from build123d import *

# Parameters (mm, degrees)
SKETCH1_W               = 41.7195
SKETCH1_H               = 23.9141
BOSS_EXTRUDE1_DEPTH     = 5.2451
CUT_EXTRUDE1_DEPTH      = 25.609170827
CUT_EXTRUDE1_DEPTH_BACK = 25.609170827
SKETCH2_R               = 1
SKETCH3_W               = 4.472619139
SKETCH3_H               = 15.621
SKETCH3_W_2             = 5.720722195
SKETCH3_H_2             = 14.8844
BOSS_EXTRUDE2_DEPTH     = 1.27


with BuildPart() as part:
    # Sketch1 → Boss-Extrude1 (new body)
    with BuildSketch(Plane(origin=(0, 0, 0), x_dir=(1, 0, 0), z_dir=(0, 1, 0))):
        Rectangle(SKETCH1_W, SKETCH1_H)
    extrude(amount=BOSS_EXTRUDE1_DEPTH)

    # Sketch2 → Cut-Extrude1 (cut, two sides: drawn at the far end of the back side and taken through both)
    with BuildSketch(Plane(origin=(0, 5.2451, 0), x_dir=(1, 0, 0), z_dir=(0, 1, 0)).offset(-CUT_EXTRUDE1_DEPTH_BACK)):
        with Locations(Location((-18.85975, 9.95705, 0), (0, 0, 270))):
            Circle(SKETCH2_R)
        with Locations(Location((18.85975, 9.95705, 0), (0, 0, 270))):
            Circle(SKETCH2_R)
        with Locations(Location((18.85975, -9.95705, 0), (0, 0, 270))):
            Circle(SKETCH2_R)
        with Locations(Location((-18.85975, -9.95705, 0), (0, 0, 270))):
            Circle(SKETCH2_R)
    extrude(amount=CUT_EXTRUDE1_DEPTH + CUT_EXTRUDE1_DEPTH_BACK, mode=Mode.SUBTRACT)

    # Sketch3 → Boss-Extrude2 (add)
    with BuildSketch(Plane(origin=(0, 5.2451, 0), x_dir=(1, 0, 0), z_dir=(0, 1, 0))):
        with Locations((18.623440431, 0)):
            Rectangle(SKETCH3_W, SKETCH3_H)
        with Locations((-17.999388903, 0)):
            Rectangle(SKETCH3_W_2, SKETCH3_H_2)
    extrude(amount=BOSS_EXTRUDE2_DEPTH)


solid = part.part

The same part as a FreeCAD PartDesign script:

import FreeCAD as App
import Part
import Sketcher

V = App.Vector
Q = App.Units.Quantity


def add_polygon(sketch, points):
    """Adds a closed chain of lines whose ends are joined by coincident constraints."""
    first, n = sketch.GeometryCount, len(points)
    for a, b in zip(points, points[1:] + points[:1]):
        sketch.addGeometry(Part.LineSegment(App.Vector(*a, 0), App.Vector(*b, 0)), False)
    for i in range(n):
        sketch.addConstraint(Sketcher.Constraint("Coincident", first + i, 2, first + (i + 1) % n, 1))

doc = App.newDocument("Part")
body = doc.addObject("PartDesign::Body", "Body")

# Sketch on XZ plane
sketch1 = doc.addObject("Sketcher::SketchObject", "Sketch")
body.addObject(sketch1)
sketch1.AttachmentSupport = (doc.XZ_Plane, [""])
sketch1.MapMode = "FlatFace"
add_polygon(sketch1, [(-21, -12), (-21, 12), (21, 12), (21, -12)])  # lines 0-3
sketch1.addConstraint(Sketcher.Constraint("Vertical", 0))
sketch1.addConstraint(Sketcher.Constraint("Horizontal", 1))
sketch1.addConstraint(Sketcher.Constraint("Vertical", 2))
sketch1.addConstraint(Sketcher.Constraint("Horizontal", 3))
sketch1.addConstraint(Sketcher.Constraint("Symmetric", 0, 2, 2, 2, -1, 1))
sketch1.addConstraint(Sketcher.Constraint("DistanceX", 1, 1, 1, 2, Q("1.6425 in")))
sketch1.addConstraint(Sketcher.Constraint("DistanceY", 0, 1, 0, 2, Q("0.9415 in")))
pad1 = doc.addObject("PartDesign::Pad", "Pad")
body.addObject(pad1)
pad1.Profile = sketch1
pad1.Length = Q("0.2065 in")
pad1.Reversed = True

# Sketch on XZ plane
sketch2 = doc.addObject("Sketcher::SketchObject", "Sketch001")
body.addObject(sketch2)
sketch2.AttachmentSupport = (doc.XZ_Plane, [""])
sketch2.MapMode = "FlatFace"
sketch2.AttachmentOffset = App.Placement(V(0, 0, -0.2065 * 25.4), App.Rotation())
sketch2.addGeometry(Part.Circle(V(-18.9, -10, 0), V(0, 0, 1), 1), False)
sketch2.addGeometry(Part.Circle(V(18.9, -10, 0), V(0, 0, 1), 1), False)
sketch2.addGeometry(Part.Circle(V(18.9, 10, 0), V(0, 0, 1), 1), False)
sketch2.addGeometry(Part.Circle(V(-18.9, 10, 0), V(0, 0, 1), 1), False)
sketch2.addConstraint(Sketcher.Constraint("Equal", 0, 1))
sketch2.addConstraint(Sketcher.Constraint("Equal", 1, 2))
sketch2.addConstraint(Sketcher.Constraint("Equal", 2, 3))
sketch2.addConstraint(Sketcher.Constraint("Symmetric", 0, 3, 2, 3, -1, 1))
sketch2.addConstraint(Sketcher.Constraint("Symmetric", 1, 3, 3, 3, -1, 1))
sketch2.addConstraint(Sketcher.Constraint("Symmetric", 0, 3, 1, 3, -2))
sketch2.addConstraint(Sketcher.Constraint("Diameter", 0, 2.0))
sketch2.addConstraint(Sketcher.Constraint("DistanceX", 0, 3, 1, 3, 37.7195))
sketch2.addConstraint(Sketcher.Constraint("DistanceY", 1, 3, 2, 3, 19.9141))
pocket1 = doc.addObject("PartDesign::Pocket", "Pocket")
body.addObject(pocket1)
pocket1.Profile = sketch2
pocket1.Type = "ThroughAll"
pocket1.Midplane = True

# Sketch on XZ plane
sketch3 = doc.addObject("Sketcher::SketchObject", "Sketch002")
body.addObject(sketch3)
sketch3.AttachmentSupport = (doc.XZ_Plane, [""])
sketch3.MapMode = "FlatFace"
sketch3.AttachmentOffset = App.Placement(V(0, 0, -0.2065 * 25.4), App.Rotation())
add_polygon(sketch3, [(16.4, -7.8), (16.4, 7.8), (20.9, 7.8), (20.9, -7.8)])  # lines 0-3
add_polygon(sketch3, [(-20.9, -7.4), (-20.9, 7.4), (-15.1, 7.4), (-15.1, -7.4)])  # lines 4-7
sketch3.addConstraint(Sketcher.Constraint("Vertical", 0))
sketch3.addConstraint(Sketcher.Constraint("Horizontal", 1))
sketch3.addConstraint(Sketcher.Constraint("Vertical", 2))
sketch3.addConstraint(Sketcher.Constraint("Horizontal", 3))
sketch3.addConstraint(Sketcher.Constraint("Vertical", 4))
sketch3.addConstraint(Sketcher.Constraint("Horizontal", 5))
sketch3.addConstraint(Sketcher.Constraint("Vertical", 6))
sketch3.addConstraint(Sketcher.Constraint("Horizontal", 7))
sketch3.addConstraint(Sketcher.Constraint("DistanceY", 0, 1, 0, 2, Q("0.615 in")))
sketch3.addConstraint(Sketcher.Constraint("DistanceY", 4, 1, 4, 2, Q("0.586 in")))
sketch3.addConstraint(Sketcher.Constraint("DistanceY", -1, 1, 4, 2, Q("0.293 in")))
sketch3.addConstraint(Sketcher.Constraint("DistanceY", -1, 1, 0, 2, Q("0.3075 in")))
sketch3.addConstraint(Sketcher.Constraint("DistanceX", 4, 2, 1, 2, Q("1.6425 in")))
sketch3.addConstraint(Sketcher.Constraint("DistanceX", 1, 1, 1, 2, 4.472619))
sketch3.addConstraint(Sketcher.Constraint("DistanceX", 5, 1, 5, 2, 5.720722))
sketch3.addConstraint(Sketcher.Constraint("DistanceX", -1, 1, 0, 2, 16.387131))
pad2 = doc.addObject("PartDesign::Pad", "Pad001")
body.addObject(pad2)
pad2.Profile = sketch3
pad2.Length = Q("0.05 in")
pad2.Reversed = True

doc.recompute()
